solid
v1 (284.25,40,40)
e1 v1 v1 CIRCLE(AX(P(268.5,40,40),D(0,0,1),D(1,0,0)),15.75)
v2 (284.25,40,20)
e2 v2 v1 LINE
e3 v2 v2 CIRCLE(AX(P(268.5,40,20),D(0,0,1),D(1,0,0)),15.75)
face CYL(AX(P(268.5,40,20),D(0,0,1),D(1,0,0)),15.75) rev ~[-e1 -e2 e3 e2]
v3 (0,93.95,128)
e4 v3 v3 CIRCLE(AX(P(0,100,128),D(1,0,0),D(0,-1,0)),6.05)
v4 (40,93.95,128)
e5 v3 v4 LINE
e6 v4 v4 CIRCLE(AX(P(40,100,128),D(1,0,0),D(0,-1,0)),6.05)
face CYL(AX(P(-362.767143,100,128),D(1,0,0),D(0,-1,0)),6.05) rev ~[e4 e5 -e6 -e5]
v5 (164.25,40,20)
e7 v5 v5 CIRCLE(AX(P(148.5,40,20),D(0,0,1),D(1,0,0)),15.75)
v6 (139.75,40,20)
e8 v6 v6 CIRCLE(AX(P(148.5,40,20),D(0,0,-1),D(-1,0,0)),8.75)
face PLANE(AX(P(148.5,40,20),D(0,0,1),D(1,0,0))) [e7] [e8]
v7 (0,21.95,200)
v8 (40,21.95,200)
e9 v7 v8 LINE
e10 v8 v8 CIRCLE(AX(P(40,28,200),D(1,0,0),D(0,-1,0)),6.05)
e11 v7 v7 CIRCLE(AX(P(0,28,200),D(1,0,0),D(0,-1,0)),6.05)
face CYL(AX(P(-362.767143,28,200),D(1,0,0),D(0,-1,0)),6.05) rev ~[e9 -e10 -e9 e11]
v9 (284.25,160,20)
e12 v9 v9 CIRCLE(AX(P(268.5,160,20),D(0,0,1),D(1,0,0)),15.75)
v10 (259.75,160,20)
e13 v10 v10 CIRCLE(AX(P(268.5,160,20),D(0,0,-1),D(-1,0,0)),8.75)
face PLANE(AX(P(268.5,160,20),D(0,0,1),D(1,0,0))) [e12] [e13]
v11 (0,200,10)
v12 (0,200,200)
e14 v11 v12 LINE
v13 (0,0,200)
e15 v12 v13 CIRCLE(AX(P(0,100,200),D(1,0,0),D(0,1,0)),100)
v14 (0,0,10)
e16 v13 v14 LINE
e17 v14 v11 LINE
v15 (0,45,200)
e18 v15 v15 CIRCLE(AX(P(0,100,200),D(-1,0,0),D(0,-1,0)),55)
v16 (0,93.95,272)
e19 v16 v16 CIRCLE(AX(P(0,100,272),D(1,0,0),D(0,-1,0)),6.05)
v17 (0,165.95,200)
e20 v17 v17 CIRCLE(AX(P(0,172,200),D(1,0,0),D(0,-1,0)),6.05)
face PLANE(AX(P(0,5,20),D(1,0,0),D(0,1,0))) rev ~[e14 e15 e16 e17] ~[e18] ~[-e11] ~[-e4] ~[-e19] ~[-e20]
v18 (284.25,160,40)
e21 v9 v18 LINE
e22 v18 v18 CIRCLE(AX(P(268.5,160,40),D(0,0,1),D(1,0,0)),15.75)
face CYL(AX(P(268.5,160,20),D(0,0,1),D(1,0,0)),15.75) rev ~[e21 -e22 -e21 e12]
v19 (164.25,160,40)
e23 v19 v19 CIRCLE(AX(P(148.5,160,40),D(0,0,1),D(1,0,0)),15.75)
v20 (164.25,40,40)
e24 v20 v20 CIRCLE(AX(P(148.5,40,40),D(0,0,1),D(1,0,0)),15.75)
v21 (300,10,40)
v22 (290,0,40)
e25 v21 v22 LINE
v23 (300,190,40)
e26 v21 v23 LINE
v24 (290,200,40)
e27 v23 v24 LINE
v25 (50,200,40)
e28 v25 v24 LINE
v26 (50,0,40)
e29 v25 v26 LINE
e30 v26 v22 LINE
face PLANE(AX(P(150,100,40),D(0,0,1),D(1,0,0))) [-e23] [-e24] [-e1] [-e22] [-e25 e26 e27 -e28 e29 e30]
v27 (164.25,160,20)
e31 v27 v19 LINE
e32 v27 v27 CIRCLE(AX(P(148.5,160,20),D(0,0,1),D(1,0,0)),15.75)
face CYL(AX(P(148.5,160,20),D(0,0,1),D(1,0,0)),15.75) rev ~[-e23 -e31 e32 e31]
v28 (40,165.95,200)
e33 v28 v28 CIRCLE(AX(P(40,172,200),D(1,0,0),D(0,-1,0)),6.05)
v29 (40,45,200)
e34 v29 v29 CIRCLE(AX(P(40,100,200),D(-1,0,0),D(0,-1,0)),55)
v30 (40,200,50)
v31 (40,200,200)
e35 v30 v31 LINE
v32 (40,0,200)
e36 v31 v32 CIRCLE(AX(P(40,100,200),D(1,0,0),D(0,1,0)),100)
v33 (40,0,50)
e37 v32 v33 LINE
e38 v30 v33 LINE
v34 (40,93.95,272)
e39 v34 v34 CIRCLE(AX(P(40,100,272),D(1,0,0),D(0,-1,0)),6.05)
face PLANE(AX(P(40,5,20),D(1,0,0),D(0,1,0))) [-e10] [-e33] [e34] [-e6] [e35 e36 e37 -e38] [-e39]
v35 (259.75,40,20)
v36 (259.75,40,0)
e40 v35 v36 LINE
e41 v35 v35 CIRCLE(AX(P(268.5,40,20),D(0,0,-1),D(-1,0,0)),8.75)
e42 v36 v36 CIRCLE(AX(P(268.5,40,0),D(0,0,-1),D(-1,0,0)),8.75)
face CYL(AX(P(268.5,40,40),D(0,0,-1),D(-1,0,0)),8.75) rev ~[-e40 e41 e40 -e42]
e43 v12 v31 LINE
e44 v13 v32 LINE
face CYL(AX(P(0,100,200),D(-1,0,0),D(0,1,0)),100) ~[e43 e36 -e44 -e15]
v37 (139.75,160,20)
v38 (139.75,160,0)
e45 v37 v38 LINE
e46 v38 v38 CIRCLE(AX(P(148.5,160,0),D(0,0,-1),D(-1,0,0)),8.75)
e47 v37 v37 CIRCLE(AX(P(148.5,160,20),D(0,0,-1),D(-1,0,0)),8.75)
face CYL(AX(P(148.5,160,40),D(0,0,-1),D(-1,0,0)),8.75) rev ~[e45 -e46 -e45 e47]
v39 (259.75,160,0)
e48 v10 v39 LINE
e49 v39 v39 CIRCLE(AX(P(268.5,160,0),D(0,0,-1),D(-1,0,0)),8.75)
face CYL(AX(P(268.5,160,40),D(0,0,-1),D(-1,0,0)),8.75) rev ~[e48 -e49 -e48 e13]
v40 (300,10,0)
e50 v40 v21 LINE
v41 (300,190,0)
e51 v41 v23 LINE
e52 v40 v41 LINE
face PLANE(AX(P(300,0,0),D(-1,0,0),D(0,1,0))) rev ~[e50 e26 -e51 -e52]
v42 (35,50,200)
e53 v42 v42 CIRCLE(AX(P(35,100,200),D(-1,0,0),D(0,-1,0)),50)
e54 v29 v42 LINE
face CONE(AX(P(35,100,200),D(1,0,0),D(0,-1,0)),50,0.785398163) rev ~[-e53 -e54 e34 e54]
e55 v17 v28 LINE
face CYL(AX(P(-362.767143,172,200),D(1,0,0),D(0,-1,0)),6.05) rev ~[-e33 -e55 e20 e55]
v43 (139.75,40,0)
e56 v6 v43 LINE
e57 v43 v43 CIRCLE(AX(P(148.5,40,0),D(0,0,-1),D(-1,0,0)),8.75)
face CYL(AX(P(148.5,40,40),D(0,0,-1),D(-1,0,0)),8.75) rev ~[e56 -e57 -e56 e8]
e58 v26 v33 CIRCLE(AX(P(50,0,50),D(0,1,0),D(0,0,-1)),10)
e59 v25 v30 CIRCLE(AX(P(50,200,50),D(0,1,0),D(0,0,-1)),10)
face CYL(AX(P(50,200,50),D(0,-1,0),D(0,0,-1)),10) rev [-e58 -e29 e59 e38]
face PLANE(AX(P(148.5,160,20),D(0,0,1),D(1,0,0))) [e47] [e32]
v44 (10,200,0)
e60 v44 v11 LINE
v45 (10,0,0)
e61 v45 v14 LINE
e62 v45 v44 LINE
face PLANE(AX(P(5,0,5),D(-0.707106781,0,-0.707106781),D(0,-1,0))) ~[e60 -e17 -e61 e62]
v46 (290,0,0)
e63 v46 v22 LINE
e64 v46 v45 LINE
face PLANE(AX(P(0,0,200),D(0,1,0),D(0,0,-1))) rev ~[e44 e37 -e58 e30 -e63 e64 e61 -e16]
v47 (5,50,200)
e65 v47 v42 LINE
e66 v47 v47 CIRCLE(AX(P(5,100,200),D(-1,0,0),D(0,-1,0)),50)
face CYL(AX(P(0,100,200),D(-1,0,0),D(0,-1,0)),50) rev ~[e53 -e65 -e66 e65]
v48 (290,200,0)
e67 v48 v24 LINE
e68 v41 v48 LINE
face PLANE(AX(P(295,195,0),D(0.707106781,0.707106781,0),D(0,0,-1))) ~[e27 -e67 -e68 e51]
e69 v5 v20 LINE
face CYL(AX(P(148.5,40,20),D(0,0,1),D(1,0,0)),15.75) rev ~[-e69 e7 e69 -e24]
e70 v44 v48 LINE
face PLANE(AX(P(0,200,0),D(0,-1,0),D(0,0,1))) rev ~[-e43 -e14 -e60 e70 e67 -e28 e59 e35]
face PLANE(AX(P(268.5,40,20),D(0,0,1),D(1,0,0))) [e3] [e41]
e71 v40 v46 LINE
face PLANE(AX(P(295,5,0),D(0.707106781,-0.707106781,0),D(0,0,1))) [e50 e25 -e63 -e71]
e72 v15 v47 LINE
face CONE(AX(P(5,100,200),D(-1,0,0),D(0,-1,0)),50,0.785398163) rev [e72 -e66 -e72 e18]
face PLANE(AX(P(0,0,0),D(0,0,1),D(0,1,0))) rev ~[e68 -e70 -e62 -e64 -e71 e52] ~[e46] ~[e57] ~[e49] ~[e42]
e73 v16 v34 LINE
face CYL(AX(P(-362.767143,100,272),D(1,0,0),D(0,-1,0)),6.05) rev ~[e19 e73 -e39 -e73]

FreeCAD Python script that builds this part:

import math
import FreeCAD as App
import Part
import Sketcher
from FreeCAD import Vector
Q = App.Units.Quantity


def edges_at(feature, points):
    """Names of the edges that pass closest to the given points."""
    edges = feature.Shape.Edges
    near = lambda p: min(range(len(edges)), key=lambda i: edges[i].distToShape(Part.Vertex(*p))[0])
    return sorted({f"Edge{near(p) + 1}" for p in points})

doc = App.newDocument("Part")
body = doc.addObject("PartDesign::Body", "Body")

sketch1 = doc.addObject("Sketcher::SketchObject", "Sketch")
body.addObject(sketch1)
sketch1.AttachmentSupport = (doc.YZ_Plane, [""])
sketch1.MapMode = "FlatFace"
sketch1.addGeometry([
    Part.LineSegment(Vector(0, 0, 0), Vector(200, 0, 0)),
    Part.LineSegment(Vector(200, 0, 0), Vector(200, 200, 0)),
    Part.ArcOfCircle(Part.Circle(Vector(100, 200, 0), Vector(0, 0, 1), 100), math.radians(0), math.radians(180)),
    Part.LineSegment(Vector(0, 200, 0), Vector(0, 0, 0)),
    Part.Circle(Vector(100, 200, 0), Vector(0, 0, 1), 50),
], False)
sketch1.addConstraint([
    Sketcher.Constraint("Coincident", 0, 2, 1, 1),
    Sketcher.Constraint("Tangent", 1, 2, 2, 1),
    Sketcher.Constraint("Tangent", 2, 2, 3, 1),
    Sketcher.Constraint("Coincident", 3, 2, 0, 1),
    Sketcher.Constraint("Horizontal", 0),
    Sketcher.Constraint("Vertical", 1),
    Sketcher.Constraint("Vertical", 3),
    Sketcher.Constraint("Coincident", 3, 2, -1, 1),
    Sketcher.Constraint("Coincident", 4, 3, 2, 3),
    Sketcher.Constraint("Equal", 0, 1),
    Sketcher.Constraint("Diameter", 4, Q("100 mm")),
    Sketcher.Constraint("Radius", 2, Q("100 mm")),
])
pad1 = doc.addObject("PartDesign::Pad", "Pad")
body.addObject(pad1)
pad1.Profile = sketch1
pad1.Length = 40

sketch2 = doc.addObject("Sketcher::SketchObject", "Sketch001")
body.addObject(sketch2)
sketch2.AttachmentSupport = (doc.YZ_Plane, [""])
sketch2.MapMode = "FlatFace"
sketch2.addGeometry([
    Part.Circle(Vector(100, 272, 0), Vector(0, 0, 1), 6),
    Part.Circle(Vector(100, 128, 0), Vector(0, 0, 1), 6),
    Part.Circle(Vector(172, 200, 0), Vector(0, 0, 1), 6),
    Part.Circle(Vector(28, 200, 0), Vector(0, 0, 1), 6),
], False)
sketch2.addConstraint([
    Sketcher.Constraint("Equal", 0, 1),
    Sketcher.Constraint("Equal", 1, 2),
    Sketcher.Constraint("Equal", 2, 3),
    Sketcher.Constraint("Horizontal", 2, 3, 3, 3),
    Sketcher.Constraint("Vertical", 0, 3, 1, 3),
    Sketcher.Constraint("Diameter", 0, Q("12.1 mm")),
    Sketcher.Constraint("DistanceX", -1, 1, 0, 3, Q("100 mm")),
    Sketcher.Constraint("DistanceY", -1, 1, 0, 3, Q("272 mm")),
    Sketcher.Constraint("DistanceY", -1, 1, 1, 3, Q("128 mm")),
    Sketcher.Constraint("DistanceX", -1, 1, 2, 3, Q("172 mm")),
    Sketcher.Constraint("DistanceY", -1, 1, 2, 3, Q("200 mm")),
    Sketcher.Constraint("DistanceX", -1, 1, 3, 3, Q("28 mm")),
])
doc.recompute()
hole = doc.addObject("PartDesign::Hole", "Hole")
body.addObject(hole)
hole.Profile = sketch2
hole.ThreadType = "None"
hole.Diameter = 12.1
hole.DepthType = "ThroughAll"
hole.Reversed = True

sketch3 = doc.addObject("Sketcher::SketchObject", "Sketch002")
body.addObject(sketch3)
sketch3.AttachmentSupport = (doc.XY_Plane, [""])
sketch3.MapMode = "FlatFace"
sketch3.addGeometry([
    Part.LineSegment(Vector(0, 200, 0), Vector(0, 0, 0)),
    Part.LineSegment(Vector(0, 0, 0), Vector(300, 0, 0)),
    Part.LineSegment(Vector(300, 0, 0), Vector(300, 200, 0)),
    Part.LineSegment(Vector(300, 200, 0), Vector(0, 200, 0)),
], False)
sketch3.addConstraint([
    Sketcher.Constraint("Coincident", 0, 2, 1, 1),
    Sketcher.Constraint("Coincident", 1, 2, 2, 1),
    Sketcher.Constraint("Coincident", 2, 2, 3, 1),
    Sketcher.Constraint("Coincident", 3, 2, 0, 1),
    Sketcher.Constraint("Vertical", 0),
    Sketcher.Constraint("Horizontal", 1),
    Sketcher.Constraint("Vertical", 2),
    Sketcher.Constraint("Horizontal", 3),
    Sketcher.Constraint("Coincident", 0, 2, -1, 1),
    Sketcher.Constraint("DistanceX", 1, 1, 1, 2, Q("300 mm")),
    Sketcher.Constraint("DistanceY", 0, 2, 0, 1, Q("200 mm")),
])
pad2 = doc.addObject("PartDesign::Pad", "Pad001")
body.addObject(pad2)
pad2.Profile = sketch3
pad2.Length = 40
doc.recompute()

chamfer = doc.addObject("PartDesign::Chamfer", "Chamfer")
body.addObject(chamfer)
chamfer.Base = (pad2, edges_at(pad2, [(300, 0, 20)]))
chamfer.Size = 10
doc.recompute()

chamfer2 = doc.addObject("PartDesign::Chamfer", "Chamfer001")
body.addObject(chamfer2)
chamfer2.Base = (chamfer, edges_at(chamfer, [(300, 200, 20)]))
chamfer2.Size = 10
doc.recompute()

chamfer3 = doc.addObject("PartDesign::Chamfer", "Chamfer002")
body.addObject(chamfer3)
chamfer3.Base = (chamfer2, edges_at(chamfer2, [(0, 100, 0)]))
chamfer3.Size = 10
doc.recompute()

fillet = doc.addObject("PartDesign::Fillet", "Fillet")
body.addObject(fillet)
fillet.Base = (chamfer3, edges_at(chamfer3, [(40, 100, 40)]))
fillet.Radius = 10
doc.recompute()

chamfer4 = doc.addObject("PartDesign::Chamfer", "Chamfer003")
body.addObject(chamfer4)
chamfer4.Base = (fillet, edges_at(fillet, [(40, 150, 200), (0, 150, 200)]))
chamfer4.Size = 5

sketch4 = doc.addObject("Sketcher::SketchObject", "Sketch003")
body.addObject(sketch4)
sketch4.AttachmentSupport = (doc.XY_Plane, [""])
sketch4.MapMode = "FlatFace"
sketch4.AttachmentOffset = App.Placement(Vector(0, 0, 40), App.Rotation())
sketch4.addGeometry([
    Part.Circle(Vector(268, 40, 0), Vector(0, 0, 1), 9),
    Part.Circle(Vector(148, 40, 0), Vector(0, 0, 1), 9),
    Part.Circle(Vector(148, 160, 0), Vector(0, 0, 1), 9),
    Part.Circle(Vector(268, 160, 0), Vector(0, 0, 1), 9),
], False)
sketch4.addConstraint([
    Sketcher.Constraint("Equal", 0, 1),
    Sketcher.Constraint("Equal", 1, 2),
    Sketcher.Constraint("Equal", 2, 3),
    Sketcher.Constraint("Horizontal", 0, 3, 1, 3),
    Sketcher.Constraint("Horizontal", 2, 3, 3, 3),
    Sketcher.Constraint("Vertical", 1, 3, 2, 3),
    Sketcher.Constraint("Vertical", 0, 3, 3, 3),
    Sketcher.Constraint("Diameter", 0, Q("17.5 mm")),
    Sketcher.Constraint("DistanceY", -1, 1, 0, 3, Q("40 mm")),
    Sketcher.Constraint("DistanceY", -1, 1, 2, 3, Q("160 mm")),
    Sketcher.Constraint("DistanceX", 1, 3, 0, 3, Q("120 mm")),
    Sketcher.Constraint("DistanceX", -1, 1, 0, 3, Q("268.5 mm")),
])
doc.recompute()
hole2 = doc.addObject("PartDesign::Hole", "Hole001")
body.addObject(hole2)
hole2.Profile = sketch4
hole2.ThreadType = "None"
hole2.Diameter = 17.5
hole2.DepthType = "ThroughAll"
hole2.HoleCutType = "Counterbore"
hole2.HoleCutDiameter = 31.5
hole2.HoleCutDepth = 20

doc.recompute()
